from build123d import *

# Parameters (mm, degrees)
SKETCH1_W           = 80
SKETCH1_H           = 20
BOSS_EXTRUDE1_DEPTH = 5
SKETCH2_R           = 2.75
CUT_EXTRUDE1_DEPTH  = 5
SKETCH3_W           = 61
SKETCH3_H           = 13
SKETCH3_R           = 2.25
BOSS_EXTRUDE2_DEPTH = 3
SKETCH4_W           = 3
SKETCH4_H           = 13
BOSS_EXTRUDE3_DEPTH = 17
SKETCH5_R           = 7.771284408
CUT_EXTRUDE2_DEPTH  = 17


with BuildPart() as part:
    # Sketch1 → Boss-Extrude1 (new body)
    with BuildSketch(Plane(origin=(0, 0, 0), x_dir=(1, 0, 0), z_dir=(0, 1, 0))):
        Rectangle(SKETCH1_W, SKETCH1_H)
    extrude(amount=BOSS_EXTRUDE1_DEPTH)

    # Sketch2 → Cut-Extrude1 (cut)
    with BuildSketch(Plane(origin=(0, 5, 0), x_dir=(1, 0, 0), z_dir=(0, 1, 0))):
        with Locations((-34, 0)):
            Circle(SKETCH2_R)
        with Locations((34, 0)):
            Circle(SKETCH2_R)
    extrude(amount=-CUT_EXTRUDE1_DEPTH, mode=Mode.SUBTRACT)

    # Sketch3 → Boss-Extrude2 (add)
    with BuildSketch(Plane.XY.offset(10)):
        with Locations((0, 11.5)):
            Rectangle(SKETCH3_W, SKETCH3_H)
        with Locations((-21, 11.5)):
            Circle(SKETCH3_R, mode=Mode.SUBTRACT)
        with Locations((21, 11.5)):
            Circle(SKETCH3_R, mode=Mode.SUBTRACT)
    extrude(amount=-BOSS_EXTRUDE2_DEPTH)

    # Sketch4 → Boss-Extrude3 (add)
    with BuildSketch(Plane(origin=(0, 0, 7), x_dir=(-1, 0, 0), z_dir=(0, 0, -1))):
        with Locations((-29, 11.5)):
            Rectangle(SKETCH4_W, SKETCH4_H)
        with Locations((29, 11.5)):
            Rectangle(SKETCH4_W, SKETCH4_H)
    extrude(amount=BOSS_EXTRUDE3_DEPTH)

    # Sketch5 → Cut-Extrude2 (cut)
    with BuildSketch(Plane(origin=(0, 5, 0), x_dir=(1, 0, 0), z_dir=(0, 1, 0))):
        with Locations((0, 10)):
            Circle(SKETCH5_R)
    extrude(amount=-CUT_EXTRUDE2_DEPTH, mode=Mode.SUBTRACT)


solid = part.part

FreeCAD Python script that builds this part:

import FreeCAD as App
import Part
import Sketcher

V = App.Vector

doc = App.newDocument("Part")
body = doc.addObject("PartDesign::Body", "Body")

# Sketch on XZ plane
sketch1 = body.newObject("Sketcher::SketchObject", "Sketch")
sketch1.AttachmentSupport = (doc.getObject("XZ_Plane"), [""])
sketch1.MapMode = "FlatFace"
sketch1.addGeometry([
    Part.LineSegment(V(-40, -10, 0), V(-40, 10, 0)),
    Part.LineSegment(V(-40, 10, 0), V(40, 10, 0)),
    Part.LineSegment(V(40, 10, 0), V(40, -10, 0)),
    Part.LineSegment(V(40, -10, 0), V(-40, -10, 0)),
], False)
sketch1.addConstraint([
    Sketcher.Constraint("Coincident", 0, 2, 1, 1),
    Sketcher.Constraint("Coincident", 1, 2, 2, 1),
    Sketcher.Constraint("Coincident", 2, 2, 3, 1),
    Sketcher.Constraint("Coincident", 3, 2, 0, 1),
    Sketcher.Constraint("Vertical", 0),
    Sketcher.Constraint("Horizontal", 1),
    Sketcher.Constraint("Vertical", 2),
    Sketcher.Constraint("Horizontal", 3),
    Sketcher.Constraint("Symmetric", 0, 2, 2, 2, -1, 1),
    Sketcher.Constraint("DistanceX", 1, 1, 1, 2, 80.0),
    Sketcher.Constraint("DistanceY", 0, 1, 0, 2, 20.0),
])
pad1 = body.newObject("PartDesign::Pad", "Pad")
pad1.Profile = sketch1
pad1.Length = 5
pad1.Reversed = True

# Sketch on XZ plane
sketch2 = body.newObject("Sketcher::SketchObject", "Sketch001")
sketch2.AttachmentSupport = (doc.getObject("XZ_Plane"), [""])
sketch2.MapMode = "FlatFace"
sketch2.AttachmentOffset = App.Placement(V(0, 0, -5), App.Rotation())
sketch2.addGeometry([
    Part.Circle(V(-34, 0, 0), V(0, 0, 1), 2.75),
    Part.Circle(V(34, 0, 0), V(0, 0, 1), 2.75),
], False)
sketch2.addConstraint([
    Sketcher.Constraint("Equal", 0, 1),
    Sketcher.Constraint("Symmetric", 0, 3, 1, 3, -1, 1),
    Sketcher.Constraint("PointOnObject", 0, 3, -1),
    Sketcher.Constraint("Diameter", 0, 5.5),
    Sketcher.Constraint("DistanceX", 0, 3, -1, 1, 34.0),
])
pocket1 = body.newObject("PartDesign::Pocket", "Pocket")
pocket1.Profile = sketch2
pocket1.Length = 5
pocket1.Reversed = True

# Sketch on XY plane
sketch3 = body.newObject("Sketcher::SketchObject", "Sketch002")
sketch3.AttachmentSupport = (doc.getObject("XY_Plane"), [""])
sketch3.MapMode = "FlatFace"
sketch3.AttachmentOffset = App.Placement(V(0, 0, 10), App.Rotation())
sketch3.addGeometry([
    Part.LineSegment(V(-30.5, 18, 0), V(-30.5, 5, 0)),  # 0
    Part.LineSegment(V(-30.5, 5, 0), V(30.5, 5, 0)),  # 1
    Part.LineSegment(V(30.5, 5, 0), V(30.5, 18, 0)),  # 2
    Part.LineSegment(V(30.5, 18, 0), V(-30.5, 18, 0)),  # 3
    Part.Circle(V(-21, 11.5, 0), V(0, 0, 1), 2.25),  # 4
    Part.Circle(V(21, 11.5, 0), V(0, 0, 1), 2.25),  # 5
], False)
sketch3.addConstraint([
    Sketcher.Constraint("Coincident", 0, 2, 1, 1),
    Sketcher.Constraint("Coincident", 1, 2, 2, 1),
    Sketcher.Constraint("Coincident", 2, 2, 3, 1),
    Sketcher.Constraint("Coincident", 3, 2, 0, 1),
    Sketcher.Constraint("Vertical", 0),
    Sketcher.Constraint("Horizontal", 1),
    Sketcher.Constraint("Vertical", 2),
    Sketcher.Constraint("Horizontal", 3),
    Sketcher.Constraint("Equal", 4, 5),
    Sketcher.Constraint("Symmetric", 4, 3, 5, 3, -2),
    Sketcher.Constraint("Diameter", 4, 4.5),
    Sketcher.Constraint("DistanceX", 1, 1, 1, 2, 61.0),
    Sketcher.Constraint("DistanceY", 0, 2, 0, 1, 13.0),
    Sketcher.Constraint("DistanceX", 4, 3, -1, 1, 21.0),
    Sketcher.Constraint("DistanceY", -1, 1, 0, 2, 5.0),
    Sketcher.Constraint("DistanceY", -1, 1, 4, 3, 11.5),
    Sketcher.Constraint("DistanceX", 0, 2, -1, 1, 30.5),
])
pad2 = body.newObject("PartDesign::Pad", "Pad001")
pad2.Profile = sketch3
pad2.Length = 3
pad2.Reversed = True

# Sketch on XY plane
sketch4 = body.newObject("Sketcher::SketchObject", "Sketch003")
sketch4.AttachmentSupport = (doc.getObject("XY_Plane"), [""])
sketch4.MapMode = "FlatFace"
sketch4.AttachmentOffset = App.Placement(V(0, 0, 7), App.Rotation())
sketch4.addGeometry([
    Part.LineSegment(V(30.5, 18, 0), V(30.5, 5, 0)),  # 0
    Part.LineSegment(V(30.5, 5, 0), V(27.5, 5, 0)),  # 1
    Part.LineSegment(V(27.5, 5, 0), V(27.5, 18, 0)),  # 2
    Part.LineSegment(V(27.5, 18, 0), V(30.5, 18, 0)),  # 3
    Part.LineSegment(V(-27.5, 18, 0), V(-27.5, 5, 0)),  # 4
    Part.LineSegment(V(-27.5, 5, 0), V(-30.5, 5, 0)),  # 5
    Part.LineSegment(V(-30.5, 5, 0), V(-30.5, 18, 0)),  # 6
    Part.LineSegment(V(-30.5, 18, 0), V(-27.5, 18, 0)),  # 7
], False)
sketch4.addConstraint([
    Sketcher.Constraint("Coincident", 0, 2, 1, 1),
    Sketcher.Constraint("Coincident", 1, 2, 2, 1),
    Sketcher.Constraint("Coincident", 2, 2, 3, 1),
    Sketcher.Constraint("Coincident", 3, 2, 0, 1),
    Sketcher.Constraint("Coincident", 4, 2, 5, 1),
    Sketcher.Constraint("Coincident", 5, 2, 6, 1),
    Sketcher.Constraint("Coincident", 6, 2, 7, 1),
    Sketcher.Constraint("Coincident", 7, 2, 4, 1),
    Sketcher.Constraint("Vertical", 0),
    Sketcher.Constraint("Horizontal", 1),
    Sketcher.Constraint("Vertical", 2),
    Sketcher.Constraint("Horizontal", 3),
    Sketcher.Constraint("Vertical", 4),
    Sketcher.Constraint("Horizontal", 5),
    Sketcher.Constraint("Vertical", 6),
    Sketcher.Constraint("Horizontal", 7),
    Sketcher.Constraint("Symmetric", 1, 2, 4, 2, -2),
    Sketcher.Constraint("Symmetric", 3, 2, 6, 2, -2),
    Sketcher.Constraint("DistanceX", 1, 2, 1, 1, 3.0),
    Sketcher.Constraint("DistanceY", 0, 2, 0, 1, 13.0),
    Sketcher.Constraint("DistanceY", -1, 1, 0, 2, 5.0),
    Sketcher.Constraint("DistanceX", 4, 2, 1, 2, 55.0),
])
pad3 = body.newObject("PartDesign::Pad", "Pad002")
pad3.Profile = sketch4
pad3.Length = 17
pad3.Reversed = True

# Sketch on XZ plane
sketch5 = body.newObject("Sketcher::SketchObject", "Sketch004")
sketch5.AttachmentSupport = (doc.getObject("XZ_Plane"), [""])
sketch5.MapMode = "FlatFace"
sketch5.AttachmentOffset = App.Placement(V(0, 0, -5), App.Rotation())
sketch5.addGeometry(Part.Circle(V(0, -10, 0), V(0, 0, 1), 7.771284), False)
sketch5.addConstraint([
    Sketcher.Constraint("PointOnObject", 0, 3, -2),
    Sketcher.Constraint("DistanceY", 0, 3, -1, 1, 10.0),
    Sketcher.Constraint("Diameter", 0, 15.542569),
])
pocket2 = body.newObject("PartDesign::Pocket", "Pocket001")
pocket2.Profile = sketch5
pocket2.Length = 17
pocket2.Reversed = True

doc.recompute()
